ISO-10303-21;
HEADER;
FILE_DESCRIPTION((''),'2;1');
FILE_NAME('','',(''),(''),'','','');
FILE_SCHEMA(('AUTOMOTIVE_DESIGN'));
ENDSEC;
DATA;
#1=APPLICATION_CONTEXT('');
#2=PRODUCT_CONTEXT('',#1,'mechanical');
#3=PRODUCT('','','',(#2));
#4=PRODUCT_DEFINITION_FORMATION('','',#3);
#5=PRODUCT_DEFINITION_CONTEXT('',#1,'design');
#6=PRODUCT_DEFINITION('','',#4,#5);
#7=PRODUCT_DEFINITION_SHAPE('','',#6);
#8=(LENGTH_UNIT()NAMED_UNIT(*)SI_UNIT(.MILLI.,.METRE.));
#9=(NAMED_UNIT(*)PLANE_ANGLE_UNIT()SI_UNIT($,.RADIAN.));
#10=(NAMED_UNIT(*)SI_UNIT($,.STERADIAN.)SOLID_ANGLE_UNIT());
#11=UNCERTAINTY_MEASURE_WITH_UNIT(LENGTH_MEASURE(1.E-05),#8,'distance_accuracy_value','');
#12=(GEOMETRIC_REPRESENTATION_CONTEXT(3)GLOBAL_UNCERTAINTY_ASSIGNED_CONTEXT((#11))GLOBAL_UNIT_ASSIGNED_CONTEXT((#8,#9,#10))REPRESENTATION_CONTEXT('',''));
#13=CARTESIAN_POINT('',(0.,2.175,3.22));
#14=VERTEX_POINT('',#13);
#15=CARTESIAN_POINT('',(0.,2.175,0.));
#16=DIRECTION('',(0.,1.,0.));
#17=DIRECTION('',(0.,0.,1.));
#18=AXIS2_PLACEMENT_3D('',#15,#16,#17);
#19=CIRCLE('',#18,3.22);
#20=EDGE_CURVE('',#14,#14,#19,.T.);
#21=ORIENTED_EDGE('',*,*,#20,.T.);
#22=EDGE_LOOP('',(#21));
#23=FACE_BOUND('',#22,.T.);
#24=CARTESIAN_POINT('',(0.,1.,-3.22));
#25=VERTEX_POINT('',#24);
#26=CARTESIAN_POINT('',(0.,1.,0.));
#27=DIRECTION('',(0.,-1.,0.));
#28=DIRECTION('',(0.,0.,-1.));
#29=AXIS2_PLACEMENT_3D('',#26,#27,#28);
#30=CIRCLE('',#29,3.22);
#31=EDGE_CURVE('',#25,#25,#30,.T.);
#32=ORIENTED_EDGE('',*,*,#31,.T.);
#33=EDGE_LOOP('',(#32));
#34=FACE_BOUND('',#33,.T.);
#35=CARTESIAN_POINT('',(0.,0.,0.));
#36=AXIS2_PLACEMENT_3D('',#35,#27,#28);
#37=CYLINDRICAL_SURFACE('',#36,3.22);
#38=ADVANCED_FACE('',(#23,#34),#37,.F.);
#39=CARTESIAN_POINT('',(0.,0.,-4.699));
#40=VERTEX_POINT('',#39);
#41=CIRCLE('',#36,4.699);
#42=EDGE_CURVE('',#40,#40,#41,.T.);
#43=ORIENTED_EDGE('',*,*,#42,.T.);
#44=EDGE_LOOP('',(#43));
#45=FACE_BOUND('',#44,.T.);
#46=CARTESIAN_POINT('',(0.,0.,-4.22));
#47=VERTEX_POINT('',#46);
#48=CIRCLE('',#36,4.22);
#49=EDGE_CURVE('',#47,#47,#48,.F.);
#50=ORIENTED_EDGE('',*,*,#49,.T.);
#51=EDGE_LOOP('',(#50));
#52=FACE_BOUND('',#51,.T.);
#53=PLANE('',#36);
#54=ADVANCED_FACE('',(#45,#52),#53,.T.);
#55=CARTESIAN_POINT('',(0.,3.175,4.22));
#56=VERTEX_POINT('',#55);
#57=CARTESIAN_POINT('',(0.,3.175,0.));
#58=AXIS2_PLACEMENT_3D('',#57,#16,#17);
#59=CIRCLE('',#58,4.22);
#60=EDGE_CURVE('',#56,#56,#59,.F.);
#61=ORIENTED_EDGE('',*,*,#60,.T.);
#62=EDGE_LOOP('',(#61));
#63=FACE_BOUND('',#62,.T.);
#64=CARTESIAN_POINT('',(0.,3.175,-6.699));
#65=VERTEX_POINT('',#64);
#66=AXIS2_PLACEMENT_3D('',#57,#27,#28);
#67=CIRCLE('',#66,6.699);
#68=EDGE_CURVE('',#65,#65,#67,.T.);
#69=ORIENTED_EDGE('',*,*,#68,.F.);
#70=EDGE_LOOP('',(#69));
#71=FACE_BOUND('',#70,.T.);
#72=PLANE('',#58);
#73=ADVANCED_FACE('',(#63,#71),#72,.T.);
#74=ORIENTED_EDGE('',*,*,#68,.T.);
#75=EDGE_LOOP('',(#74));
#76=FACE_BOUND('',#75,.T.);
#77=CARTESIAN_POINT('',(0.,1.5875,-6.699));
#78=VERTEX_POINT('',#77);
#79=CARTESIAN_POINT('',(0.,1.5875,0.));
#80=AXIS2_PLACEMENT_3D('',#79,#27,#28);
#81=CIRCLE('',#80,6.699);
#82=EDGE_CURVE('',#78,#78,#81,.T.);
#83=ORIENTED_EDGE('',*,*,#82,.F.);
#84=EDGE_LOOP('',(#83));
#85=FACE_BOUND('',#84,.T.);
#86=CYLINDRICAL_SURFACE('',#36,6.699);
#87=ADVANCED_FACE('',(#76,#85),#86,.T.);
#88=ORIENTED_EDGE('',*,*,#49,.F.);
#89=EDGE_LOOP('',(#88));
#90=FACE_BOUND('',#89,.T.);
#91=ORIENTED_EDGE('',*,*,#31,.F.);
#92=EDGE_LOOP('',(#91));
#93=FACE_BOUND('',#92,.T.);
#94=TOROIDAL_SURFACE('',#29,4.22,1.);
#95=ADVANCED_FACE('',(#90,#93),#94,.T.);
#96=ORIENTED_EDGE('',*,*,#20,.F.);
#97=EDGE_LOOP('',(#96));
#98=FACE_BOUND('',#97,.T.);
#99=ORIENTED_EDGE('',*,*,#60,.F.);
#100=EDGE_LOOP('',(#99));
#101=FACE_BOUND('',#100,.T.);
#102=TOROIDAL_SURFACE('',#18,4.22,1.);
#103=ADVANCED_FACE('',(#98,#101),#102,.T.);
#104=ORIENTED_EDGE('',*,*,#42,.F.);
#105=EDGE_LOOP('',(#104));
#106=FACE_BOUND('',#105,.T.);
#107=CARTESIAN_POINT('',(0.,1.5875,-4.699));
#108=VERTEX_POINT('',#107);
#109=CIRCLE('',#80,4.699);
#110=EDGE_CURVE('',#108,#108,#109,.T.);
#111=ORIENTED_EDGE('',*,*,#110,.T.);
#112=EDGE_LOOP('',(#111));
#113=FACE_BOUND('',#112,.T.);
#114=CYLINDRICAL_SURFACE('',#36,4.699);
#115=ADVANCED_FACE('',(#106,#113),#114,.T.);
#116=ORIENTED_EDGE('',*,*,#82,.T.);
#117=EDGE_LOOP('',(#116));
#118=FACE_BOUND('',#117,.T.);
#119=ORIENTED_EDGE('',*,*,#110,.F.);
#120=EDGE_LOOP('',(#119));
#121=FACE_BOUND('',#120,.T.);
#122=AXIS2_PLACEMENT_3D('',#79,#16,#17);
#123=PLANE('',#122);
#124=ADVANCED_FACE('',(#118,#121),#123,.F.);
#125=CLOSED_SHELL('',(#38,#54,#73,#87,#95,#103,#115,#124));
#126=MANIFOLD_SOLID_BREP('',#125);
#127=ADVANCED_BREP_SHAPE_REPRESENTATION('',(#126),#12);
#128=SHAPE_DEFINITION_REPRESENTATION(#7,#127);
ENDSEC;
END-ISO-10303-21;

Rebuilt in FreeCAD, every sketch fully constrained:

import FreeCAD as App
import Part
import Sketcher

V = App.Vector
Q = App.Units.Quantity


def edges_at(feature, points):
    """Names of the edges that pass closest to the given points."""
    edges = feature.Shape.Edges
    near = lambda p: min(range(len(edges)), key=lambda i: edges[i].distToShape(Part.Vertex(*p))[0])
    return sorted({f"Edge{near(p) + 1}" for p in points})

doc = App.newDocument("Part")
body = doc.addObject("PartDesign::Body", "Body")

# Sketch on XY plane
sketch1 = body.newObject("Sketcher::SketchObject", "Sketch")
sketch1.AttachmentSupport = (doc.getObject("XY_Plane"), [""])
sketch1.MapMode = "FlatFace"
sketch1.addGeometry(Part.LineSegment(V(-6.7, 3.2, 0), V(-6.7, 1.6, 0)), False)
sketch1.addGeometry(Part.LineSegment(V(-6.7, 1.6, 0), V(-4.7, 1.6, 0)), False)
sketch1.addGeometry(Part.LineSegment(V(-4.7, 1.6, 0), V(-4.7, 0, 0)), False)
sketch1.addGeometry(Part.LineSegment(V(-4.7, 0, 0), V(-3.2, 0, 0)), False)
sketch1.addGeometry(Part.LineSegment(V(-3.2, 0, 0), V(-3.2, 3.2, 0)), False)
sketch1.addGeometry(Part.LineSegment(V(-3.2, 3.2, 0), V(-6.7, 3.2, 0)), False)
sketch1.addConstraint(Sketcher.Constraint("Coincident", 0, 2, 1, 1))
sketch1.addConstraint(Sketcher.Constraint("Coincident", 1, 2, 2, 1))
sketch1.addConstraint(Sketcher.Constraint("Coincident", 2, 2, 3, 1))
sketch1.addConstraint(Sketcher.Constraint("Coincident", 3, 2, 4, 1))
sketch1.addConstraint(Sketcher.Constraint("Coincident", 4, 2, 5, 1))
sketch1.addConstraint(Sketcher.Constraint("Coincident", 5, 2, 0, 1))
sketch1.addConstraint(Sketcher.Constraint("Vertical", 0))
sketch1.addConstraint(Sketcher.Constraint("Horizontal", 1))
sketch1.addConstraint(Sketcher.Constraint("Vertical", 2))
sketch1.addConstraint(Sketcher.Constraint("Horizontal", 3))
sketch1.addConstraint(Sketcher.Constraint("Vertical", 4))
sketch1.addConstraint(Sketcher.Constraint("Horizontal", 5))
sketch1.addConstraint(Sketcher.Constraint("PointOnObject", 2, 2, -1))
sketch1.addConstraint(Sketcher.Constraint("Equal", 0, 2))
sketch1.addConstraint(Sketcher.Constraint("DistanceX", 1, 1, 1, 2, Q("2 mm")))
sketch1.addConstraint(Sketcher.Constraint("DistanceX", 3, 1, 3, 2, Q("1.479 mm")))
sketch1.addConstraint(Sketcher.Constraint("DistanceY", 4, 1, 4, 2, Q("3.175 mm")))
sketch1.addConstraint(Sketcher.Constraint("DistanceX", 3, 2, -1, 1, Q("3.22 mm")))
revolution = body.newObject("PartDesign::Revolution", "Revolution")
revolution.Profile = sketch1
revolution.ReferenceAxis = (sketch1, ["V_Axis"])
revolution.Angle = 360
doc.recompute()

fillet = body.newObject("PartDesign::Fillet", "Fillet")
fillet.Base = (revolution, edges_at(revolution, [(0, 3.175, 3.22), (0, 0, 3.22)]))
fillet.Radius = 1

doc.recompute()
